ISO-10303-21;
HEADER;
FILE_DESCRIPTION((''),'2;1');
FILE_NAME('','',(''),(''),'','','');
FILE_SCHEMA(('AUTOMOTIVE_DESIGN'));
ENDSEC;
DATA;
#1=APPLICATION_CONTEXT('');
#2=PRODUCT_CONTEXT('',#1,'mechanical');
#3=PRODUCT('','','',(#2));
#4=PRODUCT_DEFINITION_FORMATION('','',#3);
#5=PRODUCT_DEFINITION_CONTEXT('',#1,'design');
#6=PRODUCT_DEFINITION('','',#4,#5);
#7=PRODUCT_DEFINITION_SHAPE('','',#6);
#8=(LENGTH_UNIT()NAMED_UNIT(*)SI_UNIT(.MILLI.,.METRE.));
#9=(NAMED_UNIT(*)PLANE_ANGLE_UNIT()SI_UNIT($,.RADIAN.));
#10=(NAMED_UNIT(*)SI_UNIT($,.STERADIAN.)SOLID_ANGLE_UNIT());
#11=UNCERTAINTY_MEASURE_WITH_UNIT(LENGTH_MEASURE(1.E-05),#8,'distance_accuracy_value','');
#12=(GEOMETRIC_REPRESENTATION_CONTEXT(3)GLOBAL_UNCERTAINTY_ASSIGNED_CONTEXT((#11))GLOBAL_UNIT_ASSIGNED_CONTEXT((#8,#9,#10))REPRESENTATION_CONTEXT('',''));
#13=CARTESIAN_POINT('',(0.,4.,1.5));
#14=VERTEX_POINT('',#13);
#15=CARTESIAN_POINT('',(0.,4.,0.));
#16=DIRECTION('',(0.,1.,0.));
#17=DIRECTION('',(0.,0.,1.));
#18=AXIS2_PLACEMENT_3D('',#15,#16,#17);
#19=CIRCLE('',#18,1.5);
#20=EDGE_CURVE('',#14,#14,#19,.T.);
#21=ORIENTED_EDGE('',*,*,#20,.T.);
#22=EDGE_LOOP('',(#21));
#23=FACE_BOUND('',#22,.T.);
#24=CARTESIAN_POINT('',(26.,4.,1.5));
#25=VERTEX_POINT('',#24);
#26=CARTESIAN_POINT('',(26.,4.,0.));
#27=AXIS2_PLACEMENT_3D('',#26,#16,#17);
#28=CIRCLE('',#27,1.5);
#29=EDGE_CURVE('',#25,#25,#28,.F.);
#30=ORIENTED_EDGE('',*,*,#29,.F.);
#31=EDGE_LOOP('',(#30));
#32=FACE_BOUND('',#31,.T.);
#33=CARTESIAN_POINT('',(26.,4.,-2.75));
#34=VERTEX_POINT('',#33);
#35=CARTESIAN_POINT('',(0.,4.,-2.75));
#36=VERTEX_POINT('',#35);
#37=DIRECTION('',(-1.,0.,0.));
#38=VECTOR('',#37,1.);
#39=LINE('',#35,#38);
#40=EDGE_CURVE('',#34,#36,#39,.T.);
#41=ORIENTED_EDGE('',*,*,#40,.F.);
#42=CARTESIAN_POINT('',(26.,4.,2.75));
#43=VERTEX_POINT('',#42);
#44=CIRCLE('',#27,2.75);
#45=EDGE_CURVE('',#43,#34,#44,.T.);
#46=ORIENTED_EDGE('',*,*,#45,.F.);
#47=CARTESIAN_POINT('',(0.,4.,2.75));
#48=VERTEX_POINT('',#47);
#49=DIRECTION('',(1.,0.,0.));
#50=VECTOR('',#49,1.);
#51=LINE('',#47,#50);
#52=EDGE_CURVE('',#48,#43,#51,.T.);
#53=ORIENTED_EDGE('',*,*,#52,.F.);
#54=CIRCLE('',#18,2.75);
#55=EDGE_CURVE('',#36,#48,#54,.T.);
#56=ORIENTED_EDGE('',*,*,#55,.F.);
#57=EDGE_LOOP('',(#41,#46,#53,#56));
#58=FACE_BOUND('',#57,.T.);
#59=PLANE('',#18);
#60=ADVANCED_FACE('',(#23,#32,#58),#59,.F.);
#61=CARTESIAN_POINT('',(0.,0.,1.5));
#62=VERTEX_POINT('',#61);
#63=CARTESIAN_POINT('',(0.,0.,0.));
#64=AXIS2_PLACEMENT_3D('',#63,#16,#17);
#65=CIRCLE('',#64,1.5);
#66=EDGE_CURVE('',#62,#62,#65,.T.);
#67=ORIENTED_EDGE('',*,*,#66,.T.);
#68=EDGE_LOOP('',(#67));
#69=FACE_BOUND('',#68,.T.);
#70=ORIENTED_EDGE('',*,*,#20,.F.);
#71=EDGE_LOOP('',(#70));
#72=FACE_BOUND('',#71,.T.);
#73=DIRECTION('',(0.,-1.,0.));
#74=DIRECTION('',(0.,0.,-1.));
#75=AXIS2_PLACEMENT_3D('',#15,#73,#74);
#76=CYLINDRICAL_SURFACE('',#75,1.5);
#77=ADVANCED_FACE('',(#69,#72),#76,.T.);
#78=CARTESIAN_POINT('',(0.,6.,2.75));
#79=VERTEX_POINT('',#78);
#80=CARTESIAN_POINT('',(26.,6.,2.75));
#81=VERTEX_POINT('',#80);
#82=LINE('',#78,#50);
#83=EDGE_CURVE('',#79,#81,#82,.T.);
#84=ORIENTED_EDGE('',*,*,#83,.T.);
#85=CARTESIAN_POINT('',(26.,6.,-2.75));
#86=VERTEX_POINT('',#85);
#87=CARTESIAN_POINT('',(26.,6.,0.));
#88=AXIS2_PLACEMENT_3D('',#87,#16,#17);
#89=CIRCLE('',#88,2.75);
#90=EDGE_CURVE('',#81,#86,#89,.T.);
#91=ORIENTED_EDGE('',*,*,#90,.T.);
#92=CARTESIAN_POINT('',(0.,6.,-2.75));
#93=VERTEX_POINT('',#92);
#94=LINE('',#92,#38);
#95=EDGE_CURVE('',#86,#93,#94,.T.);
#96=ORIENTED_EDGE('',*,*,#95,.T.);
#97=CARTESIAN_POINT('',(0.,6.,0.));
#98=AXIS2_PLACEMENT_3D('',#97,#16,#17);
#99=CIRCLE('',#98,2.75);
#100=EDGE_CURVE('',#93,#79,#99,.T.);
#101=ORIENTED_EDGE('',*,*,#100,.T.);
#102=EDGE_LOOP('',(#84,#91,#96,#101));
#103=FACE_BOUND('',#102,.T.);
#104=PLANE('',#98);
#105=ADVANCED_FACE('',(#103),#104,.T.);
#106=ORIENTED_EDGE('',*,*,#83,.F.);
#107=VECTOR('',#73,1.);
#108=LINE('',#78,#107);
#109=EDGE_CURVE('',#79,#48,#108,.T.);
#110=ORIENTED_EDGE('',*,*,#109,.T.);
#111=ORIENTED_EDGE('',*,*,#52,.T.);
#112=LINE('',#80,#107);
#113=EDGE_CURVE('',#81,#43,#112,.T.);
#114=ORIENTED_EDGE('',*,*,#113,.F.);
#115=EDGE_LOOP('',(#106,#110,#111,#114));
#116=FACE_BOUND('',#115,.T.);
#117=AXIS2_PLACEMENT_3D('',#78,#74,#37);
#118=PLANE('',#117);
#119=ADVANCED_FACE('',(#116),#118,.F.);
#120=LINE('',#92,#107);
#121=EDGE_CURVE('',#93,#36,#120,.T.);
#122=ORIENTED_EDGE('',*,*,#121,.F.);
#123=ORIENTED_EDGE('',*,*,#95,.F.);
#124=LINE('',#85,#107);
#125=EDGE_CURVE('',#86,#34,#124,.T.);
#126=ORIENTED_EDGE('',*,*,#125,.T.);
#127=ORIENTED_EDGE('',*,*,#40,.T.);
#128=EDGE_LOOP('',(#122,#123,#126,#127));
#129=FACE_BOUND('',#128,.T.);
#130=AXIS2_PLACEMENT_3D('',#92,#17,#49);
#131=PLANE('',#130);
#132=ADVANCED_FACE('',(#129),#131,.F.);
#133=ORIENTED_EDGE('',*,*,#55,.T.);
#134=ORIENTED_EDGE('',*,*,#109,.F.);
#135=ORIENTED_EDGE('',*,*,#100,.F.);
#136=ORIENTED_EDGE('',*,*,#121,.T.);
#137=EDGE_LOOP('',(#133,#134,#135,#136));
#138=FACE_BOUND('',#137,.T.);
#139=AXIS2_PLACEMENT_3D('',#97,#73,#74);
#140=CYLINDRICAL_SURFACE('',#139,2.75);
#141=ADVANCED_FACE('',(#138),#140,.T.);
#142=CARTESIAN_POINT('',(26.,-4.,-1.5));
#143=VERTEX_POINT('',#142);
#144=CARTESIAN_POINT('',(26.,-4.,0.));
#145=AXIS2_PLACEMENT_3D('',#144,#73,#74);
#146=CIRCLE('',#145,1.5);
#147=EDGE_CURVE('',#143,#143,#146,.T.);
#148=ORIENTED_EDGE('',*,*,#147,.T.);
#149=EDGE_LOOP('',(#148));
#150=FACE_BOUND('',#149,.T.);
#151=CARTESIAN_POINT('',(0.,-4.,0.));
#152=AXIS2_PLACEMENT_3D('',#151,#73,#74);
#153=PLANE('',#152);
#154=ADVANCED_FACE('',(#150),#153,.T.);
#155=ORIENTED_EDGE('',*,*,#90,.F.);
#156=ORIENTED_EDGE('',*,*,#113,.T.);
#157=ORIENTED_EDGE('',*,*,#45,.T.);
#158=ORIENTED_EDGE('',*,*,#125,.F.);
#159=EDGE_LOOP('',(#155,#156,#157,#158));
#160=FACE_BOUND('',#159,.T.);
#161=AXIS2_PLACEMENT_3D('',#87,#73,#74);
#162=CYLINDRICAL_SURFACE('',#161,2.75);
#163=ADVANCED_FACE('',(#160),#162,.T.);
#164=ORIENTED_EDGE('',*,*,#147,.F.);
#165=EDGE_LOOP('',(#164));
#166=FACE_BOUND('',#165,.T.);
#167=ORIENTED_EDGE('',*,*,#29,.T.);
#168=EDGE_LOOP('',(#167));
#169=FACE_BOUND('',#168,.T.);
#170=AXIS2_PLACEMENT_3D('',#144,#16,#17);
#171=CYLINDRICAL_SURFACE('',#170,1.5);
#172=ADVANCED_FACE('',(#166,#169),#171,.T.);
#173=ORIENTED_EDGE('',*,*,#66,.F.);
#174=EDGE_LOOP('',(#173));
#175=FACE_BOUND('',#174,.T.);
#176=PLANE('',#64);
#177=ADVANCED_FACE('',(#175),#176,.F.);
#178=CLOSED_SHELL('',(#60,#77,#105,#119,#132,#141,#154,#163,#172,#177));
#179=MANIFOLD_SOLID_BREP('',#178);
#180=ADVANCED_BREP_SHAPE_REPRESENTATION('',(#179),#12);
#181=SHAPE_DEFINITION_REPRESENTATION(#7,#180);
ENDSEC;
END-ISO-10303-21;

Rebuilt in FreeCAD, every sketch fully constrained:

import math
import FreeCAD as App
import Part
import Sketcher
from FreeCAD import Vector
Q = App.Units.Quantity

doc = App.newDocument("Part")
body = doc.addObject("PartDesign::Body", "Body")

# Sketch on XZ plane
sketch1 = body.newObject("Sketcher::SketchObject", "Sketch")
sketch1.AttachmentSupport = (doc.getObject("XZ_Plane"), [""])
sketch1.MapMode = "FlatFace"
sketch1.addGeometry(Part.Circle(Vector(0, 0, 0), Vector(0, 0, 1), 1.5), False)
sketch1.addConstraint(Sketcher.Constraint("Coincident", 0, 3, -1, 1))
sketch1.addConstraint(Sketcher.Constraint("Diameter", 0, Q("3 mm")))
pad1 = body.newObject("PartDesign::Pad", "Pad")
pad1.Profile = sketch1
pad1.Length = 4
pad1.Reversed = True

# Sketch on XZ plane
sketch2 = body.newObject("Sketcher::SketchObject", "Sketch001")
sketch2.AttachmentSupport = (doc.getObject("XZ_Plane"), [""])
sketch2.MapMode = "FlatFace"
sketch2.AttachmentOffset = App.Placement(Vector(0, 0, -4), App.Rotation())
sketch2.addGeometry(Part.LineSegment(Vector(26, -2.8, 0), Vector(0, -2.8, 0)), False)
sketch2.addGeometry(Part.ArcOfCircle(Part.Circle(Vector(0, 0, 0), Vector(0, 0, 1), 2.8), math.radians(90), math.radians(270)), False)
sketch2.addGeometry(Part.LineSegment(Vector(0, 2.8, 0), Vector(26, 2.8, 0)), False)
sketch2.addGeometry(Part.ArcOfCircle(Part.Circle(Vector(26, 0, 0), Vector(0, 0, 1), 2.8), math.radians(-90), math.radians(90)), False)
sketch2.addConstraint(Sketcher.Constraint("Tangent", 0, 2, 1, 2))
sketch2.addConstraint(Sketcher.Constraint("Tangent", 1, 1, 2, 1))
sketch2.addConstraint(Sketcher.Constraint("Tangent", 2, 2, 3, 2))
sketch2.addConstraint(Sketcher.Constraint("Tangent", 3, 1, 0, 1))
sketch2.addConstraint(Sketcher.Constraint("Horizontal", 0))
sketch2.addConstraint(Sketcher.Constraint("Horizontal", 2))
sketch2.addConstraint(Sketcher.Constraint("Coincident", 1, 3, -1, 1))
sketch2.addConstraint(Sketcher.Constraint("DistanceX", 0, 2, 0, 1, Q("26 mm")))
sketch2.addConstraint(Sketcher.Constraint("Radius", 1, Q("2.75 mm")))
pad2 = body.newObject("PartDesign::Pad", "Pad001")
pad2.Profile = sketch2
pad2.Length = 2
pad2.Reversed = True

# Sketch on XZ plane
sketch3 = body.newObject("Sketcher::SketchObject", "Sketch002")
sketch3.AttachmentSupport = (doc.getObject("XZ_Plane"), [""])
sketch3.MapMode = "FlatFace"
sketch3.AttachmentOffset = App.Placement(Vector(0, 0, -4), App.Rotation())
sketch3.addGeometry(Part.Circle(Vector(26, 0, 0), Vector(0, 0, 1), 1.5), False)
sketch3.addConstraint(Sketcher.Constraint("PointOnObject", 0, 3, -1))
sketch3.addConstraint(Sketcher.Constraint("Diameter", 0, Q("3 mm")))
sketch3.addConstraint(Sketcher.Constraint("DistanceX", -1, 1, 0, 3, Q("26 mm")))
pad3 = body.newObject("PartDesign::Pad", "Pad002")
pad3.Profile = sketch3
pad3.Length = 8

doc.recompute()
